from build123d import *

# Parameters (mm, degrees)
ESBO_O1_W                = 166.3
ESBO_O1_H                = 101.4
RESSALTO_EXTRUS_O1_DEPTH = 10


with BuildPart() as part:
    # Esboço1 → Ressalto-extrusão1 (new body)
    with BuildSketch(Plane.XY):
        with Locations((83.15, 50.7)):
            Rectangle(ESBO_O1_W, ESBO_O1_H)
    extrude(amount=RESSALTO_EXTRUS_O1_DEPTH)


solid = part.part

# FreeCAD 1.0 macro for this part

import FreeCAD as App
import Part
import Sketcher
from FreeCAD import Vector
Q = App.Units.Quantity

doc = App.newDocument("Part")
params = doc.addObject("Spreadsheet::Sheet", "Params")
for row, (alias, value) in enumerate([
    ("sketch1_width", "166.3 mm"),
    ("sketch1_height", "101.4 mm"),
    ("pad1_length", "10 mm"),
], start=1):
    params.set(f"A{row}", alias)
    params.set(f"B{row}", "=" + value)
    params.setAlias(f"B{row}", alias)

body = doc.addObject("PartDesign::Body", "Body")

# Sketch on XY plane
sketch1 = body.newObject("Sketcher::SketchObject", "Sketch")
sketch1.AttachmentSupport = (doc.getObject("XY_Plane"), [""])
sketch1.MapMode = "FlatFace"
sketch1.addGeometry([
    Part.LineSegment(Vector(0, 101, 0), Vector(0, 0, 0)),
    Part.LineSegment(Vector(0, 0, 0), Vector(166, 0, 0)),
    Part.LineSegment(Vector(166, 0, 0), Vector(166, 101, 0)),
    Part.LineSegment(Vector(166, 101, 0), Vector(0, 101, 0)),
], False)
sketch1.addConstraint([
    Sketcher.Constraint("Coincident", 0, 2, 1, 1),
    Sketcher.Constraint("Coincident", 1, 2, 2, 1),
    Sketcher.Constraint("Coincident", 2, 2, 3, 1),
    Sketcher.Constraint("Coincident", 3, 2, 0, 1),
    Sketcher.Constraint("Vertical", 0),
    Sketcher.Constraint("Horizontal", 1),
    Sketcher.Constraint("Vertical", 2),
    Sketcher.Constraint("Horizontal", 3),
    Sketcher.Constraint("Coincident", 0, 2, -1, 1),
    Sketcher.Constraint("DistanceX", 1, 1, 1, 2, Q("166.3 mm")),
    Sketcher.Constraint("DistanceY", 0, 2, 0, 1, Q("101.4 mm")),
])
sketch1.setExpression("Constraints[9]", "Params.sketch1_width")
sketch1.setExpression("Constraints[10]", "Params.sketch1_height")
pad1 = body.newObject("PartDesign::Pad", "Pad")
pad1.Profile = sketch1
pad1.setExpression("Length", "Params.pad1_length")

doc.recompute()
